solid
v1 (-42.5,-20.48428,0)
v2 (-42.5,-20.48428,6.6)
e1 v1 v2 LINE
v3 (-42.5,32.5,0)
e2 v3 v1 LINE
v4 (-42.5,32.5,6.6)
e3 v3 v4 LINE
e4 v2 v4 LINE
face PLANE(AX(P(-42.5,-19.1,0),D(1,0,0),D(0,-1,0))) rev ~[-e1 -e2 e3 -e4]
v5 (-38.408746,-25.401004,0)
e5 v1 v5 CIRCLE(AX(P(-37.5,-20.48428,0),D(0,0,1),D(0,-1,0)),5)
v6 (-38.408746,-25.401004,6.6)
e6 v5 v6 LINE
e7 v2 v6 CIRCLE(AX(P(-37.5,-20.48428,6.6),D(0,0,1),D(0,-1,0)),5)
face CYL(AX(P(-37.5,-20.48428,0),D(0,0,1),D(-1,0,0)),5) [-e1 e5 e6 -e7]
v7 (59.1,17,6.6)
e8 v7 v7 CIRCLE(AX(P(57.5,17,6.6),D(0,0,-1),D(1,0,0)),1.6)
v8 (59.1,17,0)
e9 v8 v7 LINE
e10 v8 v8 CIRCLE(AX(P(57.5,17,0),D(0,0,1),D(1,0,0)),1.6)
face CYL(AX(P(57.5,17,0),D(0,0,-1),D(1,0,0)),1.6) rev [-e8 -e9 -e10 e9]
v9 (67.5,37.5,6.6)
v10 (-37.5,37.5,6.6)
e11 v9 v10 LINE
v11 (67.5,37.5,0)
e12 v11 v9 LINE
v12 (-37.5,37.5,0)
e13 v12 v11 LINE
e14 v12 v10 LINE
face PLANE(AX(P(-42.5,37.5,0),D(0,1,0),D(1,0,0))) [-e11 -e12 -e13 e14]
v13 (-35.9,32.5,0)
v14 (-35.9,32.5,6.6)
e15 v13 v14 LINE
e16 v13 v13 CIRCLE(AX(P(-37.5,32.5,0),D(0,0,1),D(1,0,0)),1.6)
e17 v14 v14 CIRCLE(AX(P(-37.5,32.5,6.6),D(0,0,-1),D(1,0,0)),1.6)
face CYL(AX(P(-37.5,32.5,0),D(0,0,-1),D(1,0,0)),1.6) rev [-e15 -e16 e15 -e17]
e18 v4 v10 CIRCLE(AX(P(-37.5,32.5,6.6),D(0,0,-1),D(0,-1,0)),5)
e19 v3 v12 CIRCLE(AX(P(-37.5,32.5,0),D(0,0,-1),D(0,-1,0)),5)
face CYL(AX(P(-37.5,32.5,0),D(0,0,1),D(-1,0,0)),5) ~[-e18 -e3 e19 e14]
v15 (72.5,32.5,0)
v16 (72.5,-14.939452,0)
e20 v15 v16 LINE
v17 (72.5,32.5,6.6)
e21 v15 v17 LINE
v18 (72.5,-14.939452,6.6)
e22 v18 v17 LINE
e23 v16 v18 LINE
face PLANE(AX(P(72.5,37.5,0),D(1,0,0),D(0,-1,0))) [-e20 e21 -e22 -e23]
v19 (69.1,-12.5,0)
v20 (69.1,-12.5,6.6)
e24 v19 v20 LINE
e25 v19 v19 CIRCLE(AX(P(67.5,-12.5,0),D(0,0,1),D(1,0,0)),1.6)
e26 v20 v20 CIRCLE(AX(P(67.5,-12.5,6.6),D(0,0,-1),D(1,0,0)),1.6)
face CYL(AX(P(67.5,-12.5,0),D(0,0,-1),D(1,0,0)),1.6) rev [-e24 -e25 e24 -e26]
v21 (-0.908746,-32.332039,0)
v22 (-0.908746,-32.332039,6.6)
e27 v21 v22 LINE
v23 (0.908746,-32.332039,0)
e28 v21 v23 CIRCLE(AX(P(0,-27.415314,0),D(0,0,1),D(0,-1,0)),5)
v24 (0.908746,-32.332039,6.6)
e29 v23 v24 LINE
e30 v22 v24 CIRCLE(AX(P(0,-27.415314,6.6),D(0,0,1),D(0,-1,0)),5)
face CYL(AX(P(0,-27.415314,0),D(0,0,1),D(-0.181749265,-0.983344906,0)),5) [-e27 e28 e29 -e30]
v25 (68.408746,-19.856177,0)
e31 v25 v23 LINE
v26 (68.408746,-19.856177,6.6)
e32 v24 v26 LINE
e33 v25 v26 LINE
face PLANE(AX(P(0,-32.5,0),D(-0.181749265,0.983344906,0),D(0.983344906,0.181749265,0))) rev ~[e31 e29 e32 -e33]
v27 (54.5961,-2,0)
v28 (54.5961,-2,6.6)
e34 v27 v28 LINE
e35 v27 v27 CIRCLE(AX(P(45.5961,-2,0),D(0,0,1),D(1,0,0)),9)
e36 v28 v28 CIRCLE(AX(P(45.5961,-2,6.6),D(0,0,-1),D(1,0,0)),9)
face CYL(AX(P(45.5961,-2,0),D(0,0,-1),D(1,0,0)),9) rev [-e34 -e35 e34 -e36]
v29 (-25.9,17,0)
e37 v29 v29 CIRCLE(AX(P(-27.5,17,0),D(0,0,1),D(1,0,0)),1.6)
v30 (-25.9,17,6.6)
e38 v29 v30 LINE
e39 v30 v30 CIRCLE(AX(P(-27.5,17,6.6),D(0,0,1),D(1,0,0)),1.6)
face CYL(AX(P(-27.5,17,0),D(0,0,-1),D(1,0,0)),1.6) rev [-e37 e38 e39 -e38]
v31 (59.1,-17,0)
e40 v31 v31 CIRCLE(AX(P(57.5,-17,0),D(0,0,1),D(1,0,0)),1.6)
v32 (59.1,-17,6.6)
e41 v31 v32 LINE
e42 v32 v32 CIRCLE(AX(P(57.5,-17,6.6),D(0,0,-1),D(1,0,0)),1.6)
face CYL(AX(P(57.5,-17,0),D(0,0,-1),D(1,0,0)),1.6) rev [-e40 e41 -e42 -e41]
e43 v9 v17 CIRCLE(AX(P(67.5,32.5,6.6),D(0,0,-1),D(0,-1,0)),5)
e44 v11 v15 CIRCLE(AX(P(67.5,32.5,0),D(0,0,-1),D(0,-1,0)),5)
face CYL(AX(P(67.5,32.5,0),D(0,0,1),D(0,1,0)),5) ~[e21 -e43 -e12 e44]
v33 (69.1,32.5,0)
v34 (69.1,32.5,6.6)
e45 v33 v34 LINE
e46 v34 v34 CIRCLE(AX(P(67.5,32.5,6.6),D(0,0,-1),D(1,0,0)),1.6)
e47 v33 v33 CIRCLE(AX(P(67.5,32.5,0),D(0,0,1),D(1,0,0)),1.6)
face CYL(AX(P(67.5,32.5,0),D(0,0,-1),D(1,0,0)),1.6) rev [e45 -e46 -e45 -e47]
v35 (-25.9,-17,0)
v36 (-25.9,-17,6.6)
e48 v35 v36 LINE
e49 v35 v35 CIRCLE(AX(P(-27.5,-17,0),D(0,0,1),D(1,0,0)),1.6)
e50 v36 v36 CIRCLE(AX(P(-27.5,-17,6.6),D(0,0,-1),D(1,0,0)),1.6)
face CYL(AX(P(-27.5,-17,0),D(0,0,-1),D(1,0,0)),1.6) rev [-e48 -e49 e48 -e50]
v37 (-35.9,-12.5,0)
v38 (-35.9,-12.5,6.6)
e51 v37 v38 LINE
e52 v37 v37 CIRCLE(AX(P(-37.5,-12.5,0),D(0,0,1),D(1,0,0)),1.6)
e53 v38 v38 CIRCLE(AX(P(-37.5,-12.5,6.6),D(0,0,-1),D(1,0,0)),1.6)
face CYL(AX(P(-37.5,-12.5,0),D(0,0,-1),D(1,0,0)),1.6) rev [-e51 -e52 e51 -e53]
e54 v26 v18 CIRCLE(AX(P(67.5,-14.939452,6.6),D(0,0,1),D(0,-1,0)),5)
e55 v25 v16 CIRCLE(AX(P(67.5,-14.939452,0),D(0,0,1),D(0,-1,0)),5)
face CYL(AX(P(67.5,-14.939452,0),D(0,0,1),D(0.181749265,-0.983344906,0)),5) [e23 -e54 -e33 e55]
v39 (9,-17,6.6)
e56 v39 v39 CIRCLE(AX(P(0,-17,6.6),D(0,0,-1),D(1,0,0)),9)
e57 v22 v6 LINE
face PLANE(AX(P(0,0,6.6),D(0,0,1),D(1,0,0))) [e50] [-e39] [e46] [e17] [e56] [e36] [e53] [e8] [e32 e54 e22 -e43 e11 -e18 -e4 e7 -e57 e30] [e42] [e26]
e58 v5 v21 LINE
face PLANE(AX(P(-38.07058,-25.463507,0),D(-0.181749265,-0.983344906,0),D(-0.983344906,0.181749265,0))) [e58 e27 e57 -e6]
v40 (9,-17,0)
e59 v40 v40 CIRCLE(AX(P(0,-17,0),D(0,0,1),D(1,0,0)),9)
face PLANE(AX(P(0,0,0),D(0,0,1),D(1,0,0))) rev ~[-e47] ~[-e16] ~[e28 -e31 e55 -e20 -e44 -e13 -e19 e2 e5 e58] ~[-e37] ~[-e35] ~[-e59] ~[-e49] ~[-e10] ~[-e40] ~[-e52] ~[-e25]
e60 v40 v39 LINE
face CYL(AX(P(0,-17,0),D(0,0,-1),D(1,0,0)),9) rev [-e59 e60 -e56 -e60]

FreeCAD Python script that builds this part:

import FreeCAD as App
import Part
import Sketcher

V = App.Vector


def edges_at(feature, points):
    """Names of the edges that pass closest to the given points."""
    edges = feature.Shape.Edges
    near = lambda p: min(range(len(edges)), key=lambda i: edges[i].distToShape(Part.Vertex(*p))[0])
    return sorted({f"Edge{near(p) + 1}" for p in points})

doc = App.newDocument("Part")
body = doc.addObject("PartDesign::Body", "Body")

sketch1 = doc.addObject("Sketcher::SketchObject", "Sketch")
body.addObject(sketch1)
sketch1.AttachmentSupport = (doc.XY_Plane, [""])
sketch1.MapMode = "FlatFace"
sketch1.addGeometry([
    Part.LineSegment(V(-42.5, -24.6, 0), V(0, -32.5, 0)),
    Part.LineSegment(V(0, -32.5, 0), V(72.5, -19.1, 0)),
    Part.LineSegment(V(72.5, -19.1, 0), V(72.5, 37.5, 0)),
    Part.LineSegment(V(72.5, 37.5, 0), V(-42.5, 37.5, 0)),
    Part.LineSegment(V(-42.5, 37.5, 0), V(-42.5, -24.6, 0)),
    Part.Circle(V(-37.5, -12.5, 0), V(0, 0, 1), 1.6),
    Part.Circle(V(-27.5, -17, 0), V(0, 0, 1), 1.6),
    Part.Circle(V(0, -17, 0), V(0, 0, 1), 9),
    Part.Circle(V(-37.5, 32.5, 0), V(0, 0, 1), 1.6),
    Part.Circle(V(-27.5, 17, 0), V(0, 0, 1), 1.6),
    Part.Circle(V(67.5, 32.5, 0), V(0, 0, 1), 1.6),
    Part.Circle(V(57.5, 17, 0), V(0, 0, 1), 1.6),
    Part.Circle(V(67.5, -12.5, 0), V(0, 0, 1), 1.6),
    Part.Circle(V(57.5, -17, 0), V(0, 0, 1), 1.6),
    Part.Circle(V(45.6, -2, 0), V(0, 0, 1), 9),
], False)
sketch1.addConstraint([
    Sketcher.Constraint("Coincident", 0, 2, 1, 1),
    Sketcher.Constraint("Coincident", 1, 2, 2, 1),
    Sketcher.Constraint("Coincident", 2, 2, 3, 1),
    Sketcher.Constraint("Coincident", 3, 2, 4, 1),
    Sketcher.Constraint("Coincident", 4, 2, 0, 1),
    Sketcher.Constraint("Vertical", 2),
    Sketcher.Constraint("Horizontal", 3),
    Sketcher.Constraint("Vertical", 4),
    Sketcher.Constraint("Equal", 5, 6),
    Sketcher.Constraint("Equal", 6, 8),
    Sketcher.Constraint("Equal", 8, 9),
    Sketcher.Constraint("Equal", 9, 10),
    Sketcher.Constraint("Equal", 10, 11),
    Sketcher.Constraint("Equal", 11, 12),
    Sketcher.Constraint("Equal", 12, 13),
    Sketcher.Constraint("Equal", 7, 14),
    Sketcher.Constraint("Symmetric", 6, 3, 9, 3, -1),
    Sketcher.Constraint("Symmetric", 11, 3, 13, 3, -1),
    Sketcher.Constraint("PointOnObject", 7, 3, -2),
    Sketcher.Constraint("PointOnObject", 0, 2, -2),
    Sketcher.Constraint("Horizontal", 6, 3, 7, 3),
    Sketcher.Constraint("Horizontal", 8, 3, 10, 3),
    Sketcher.Constraint("Horizontal", 9, 3, 11, 3),
    Sketcher.Constraint("Horizontal", 5, 3, 12, 3),
    Sketcher.Constraint("Vertical", 5, 3, 8, 3),
    Sketcher.Constraint("Vertical", 10, 3, 12, 3),
    Sketcher.Constraint("Diameter", 7, 18.0),
    Sketcher.Constraint("Diameter", 5, 3.2),
    Sketcher.Constraint("DistanceY", 6, 3, -1, 1, 17.0),
    Sketcher.Constraint("DistanceX", 5, 3, 6, 3, 10.0),
    Sketcher.Constraint("DistanceX", 11, 3, 10, 3, 10.0),
    Sketcher.Constraint("DistanceY", 13, 3, 14, 3, 15.0),
    Sketcher.Constraint("DistanceY", 0, 2, 5, 3, 20.0),
    Sketcher.Constraint("DistanceX", 12, 3, 1, 2, 5.0),
    Sketcher.Constraint("DistanceY", 10, 3, 2, 2, 5.0),
    Sketcher.Constraint("DistanceX", 3, 2, 8, 3, 5.0),
    Sketcher.Constraint("DistanceX", -1, 1, 10, 3, 67.5),
    Sketcher.Constraint("DistanceY", 1, 2, 12, 3, 6.6),
    Sketcher.Constraint("DistanceY", 11, 3, 2, 2, 20.5),
    Sketcher.Constraint("DistanceX", 3, 2, 3, 1, 115.0),
    Sketcher.Constraint("DistanceY", 2, 1, 2, 2, 56.6),
    Sketcher.Constraint("DistanceY", 4, 2, 4, 1, 62.1448),
    Sketcher.Constraint("DistanceX", -1, 1, 14, 3, 45.596),
])
pad1 = doc.addObject("PartDesign::Pad", "Pad")
body.addObject(pad1)
pad1.Profile = sketch1
pad1.Length = 6.6
doc.recompute()

fillet = doc.addObject("PartDesign::Fillet", "Fillet")
body.addObject(fillet)
fillet.Base = (pad1, edges_at(pad1, [
    (72.5, 37.5, 3.3),
    (0, -32.5, 3.3),
    (72.5, -19.1, 3.3),
    (-42.5, 37.5, 3.3),
    (-42.5, -24.645, 3.3),
]))
fillet.Radius = 5

doc.recompute()
